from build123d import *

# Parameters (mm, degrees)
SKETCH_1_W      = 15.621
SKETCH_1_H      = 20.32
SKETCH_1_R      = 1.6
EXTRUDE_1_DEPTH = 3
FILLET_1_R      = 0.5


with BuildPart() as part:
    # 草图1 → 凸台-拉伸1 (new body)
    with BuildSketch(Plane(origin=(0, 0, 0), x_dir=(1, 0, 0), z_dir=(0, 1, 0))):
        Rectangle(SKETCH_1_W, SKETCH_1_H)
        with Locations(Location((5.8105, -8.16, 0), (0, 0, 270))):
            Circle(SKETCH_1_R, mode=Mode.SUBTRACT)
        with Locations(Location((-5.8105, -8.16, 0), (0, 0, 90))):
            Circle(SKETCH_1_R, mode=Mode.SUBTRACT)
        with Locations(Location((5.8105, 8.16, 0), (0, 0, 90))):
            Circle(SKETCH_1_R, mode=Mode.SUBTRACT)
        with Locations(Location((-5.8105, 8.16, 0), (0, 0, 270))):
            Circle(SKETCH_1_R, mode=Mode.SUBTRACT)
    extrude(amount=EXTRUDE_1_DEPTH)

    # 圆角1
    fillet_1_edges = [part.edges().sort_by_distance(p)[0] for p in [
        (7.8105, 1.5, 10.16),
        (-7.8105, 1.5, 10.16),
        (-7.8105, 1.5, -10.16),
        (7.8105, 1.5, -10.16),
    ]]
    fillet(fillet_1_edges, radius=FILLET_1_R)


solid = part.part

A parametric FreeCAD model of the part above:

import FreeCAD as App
import Part
import Sketcher
from FreeCAD import Vector
Q = App.Units.Quantity


def edges_at(feature, points):
    """Names of the edges that pass closest to the given points."""
    edges = feature.Shape.Edges
    near = lambda p: min(range(len(edges)), key=lambda i: edges[i].distToShape(Part.Vertex(*p))[0])
    return sorted({f"Edge{near(p) + 1}" for p in points})


def add_polygon(sketch, points):
    """Adds a closed chain of lines whose ends are joined by coincident constraints."""
    first, n = sketch.GeometryCount, len(points)
    for a, b in zip(points, points[1:] + points[:1]):
        sketch.addGeometry(Part.LineSegment(App.Vector(*a, 0), App.Vector(*b, 0)), False)
    for i in range(n):
        sketch.addConstraint(Sketcher.Constraint("Coincident", first + i, 2, first + (i + 1) % n, 1))

doc = App.newDocument("Part")
body = doc.addObject("PartDesign::Body", "Body")

# Sketch on XZ plane
sketch1 = body.newObject("Sketcher::SketchObject", "Sketch")
sketch1.AttachmentSupport = (doc.getObject("XZ_Plane"), [""])
sketch1.MapMode = "FlatFace"
add_polygon(sketch1, [(-7.8, -10.2), (-7.8, 10.2), (7.8, 10.2), (7.8, -10.2)])  # lines 0-3
sketch1.addGeometry(Part.Circle(Vector(-5.8, 8.2, 0), Vector(0, 0, 1), 1.6), False)  # 4
sketch1.addGeometry(Part.Circle(Vector(5.8, 8.2, 0), Vector(0, 0, 1), 1.6), False)  # 5
sketch1.addGeometry(Part.Circle(Vector(-5.8, -8.2, 0), Vector(0, 0, 1), 1.6), False)  # 6
sketch1.addGeometry(Part.Circle(Vector(5.8, -8.2, 0), Vector(0, 0, 1), 1.6), False)  # 7
sketch1.addConstraint([
    Sketcher.Constraint("Vertical", 0),
    Sketcher.Constraint("Horizontal", 1),
    Sketcher.Constraint("Vertical", 2),
    Sketcher.Constraint("Horizontal", 3),
    Sketcher.Constraint("Equal", 4, 5),
    Sketcher.Constraint("Equal", 5, 6),
    Sketcher.Constraint("Equal", 6, 7),
    Sketcher.Constraint("Symmetric", 5, 3, 6, 3, -1, 1),
    Sketcher.Constraint("Symmetric", 4, 3, 7, 3, -1, 1),
    Sketcher.Constraint("Symmetric", 0, 2, 2, 2, -1, 1),
    Sketcher.Constraint("Symmetric", 4, 3, 5, 3, -2),
    Sketcher.Constraint("Diameter", 4, Q("3.2 mm")),
    Sketcher.Constraint("DistanceX", 0, 2, 4, 3, Q("2 mm")),
    Sketcher.Constraint("DistanceY", 4, 3, 0, 2, Q("2 mm")),
    Sketcher.Constraint("DistanceY", 0, 1, 0, 2, Q("20.32 mm")),
    Sketcher.Constraint("DistanceX", 1, 1, 1, 2, Q("15.621 mm")),
])
pad1 = body.newObject("PartDesign::Pad", "Pad")
pad1.Profile = sketch1
pad1.Length = 3
pad1.Reversed = True
doc.recompute()

fillet = body.newObject("PartDesign::Fillet", "Fillet")
fillet.Base = (pad1, edges_at(pad1, [
    (7.811, 1.5, 10.16),
    (-7.811, 1.5, 10.16),
    (-7.811, 1.5, -10.16),
    (7.811, 1.5, -10.16),
]))
fillet.Radius = 0.5

doc.recompute()
